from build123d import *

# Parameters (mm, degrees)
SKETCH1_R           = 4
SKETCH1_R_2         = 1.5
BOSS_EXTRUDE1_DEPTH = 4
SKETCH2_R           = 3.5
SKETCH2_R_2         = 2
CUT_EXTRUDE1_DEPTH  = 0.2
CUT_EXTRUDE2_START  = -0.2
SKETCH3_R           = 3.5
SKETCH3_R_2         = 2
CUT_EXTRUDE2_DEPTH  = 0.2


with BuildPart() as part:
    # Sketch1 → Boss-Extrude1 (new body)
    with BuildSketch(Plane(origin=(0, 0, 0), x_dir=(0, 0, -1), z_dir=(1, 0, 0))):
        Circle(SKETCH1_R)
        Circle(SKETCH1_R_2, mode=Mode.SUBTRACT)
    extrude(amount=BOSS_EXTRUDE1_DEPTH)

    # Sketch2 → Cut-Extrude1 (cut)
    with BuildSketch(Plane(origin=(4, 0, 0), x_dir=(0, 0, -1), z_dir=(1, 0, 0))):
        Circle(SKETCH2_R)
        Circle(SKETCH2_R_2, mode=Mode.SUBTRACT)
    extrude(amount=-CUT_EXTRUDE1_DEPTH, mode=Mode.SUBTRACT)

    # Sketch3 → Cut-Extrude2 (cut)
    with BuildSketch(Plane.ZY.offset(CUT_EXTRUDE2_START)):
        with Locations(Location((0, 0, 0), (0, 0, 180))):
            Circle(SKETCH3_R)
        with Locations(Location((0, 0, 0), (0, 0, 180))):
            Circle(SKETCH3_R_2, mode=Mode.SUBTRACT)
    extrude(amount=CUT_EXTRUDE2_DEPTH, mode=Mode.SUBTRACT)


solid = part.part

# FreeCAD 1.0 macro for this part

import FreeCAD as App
import Part
import Sketcher

V = App.Vector

doc = App.newDocument("Part")
body = doc.addObject("PartDesign::Body", "Body")

sketch1 = body.newObject("Sketcher::SketchObject", "Sketch")
sketch1.AttachmentSupport = (doc.getObject("YZ_Plane"), [""])
sketch1.MapMode = "FlatFace"
sketch1.addGeometry([
    Part.Circle(V(0, 0, 0), V(0, 0, 1), 4),
    Part.Circle(V(0, 0, 0), V(0, 0, 1), 1.5),
], False)
sketch1.addConstraint([
    Sketcher.Constraint("Coincident", 0, 3, -1, 1),
    Sketcher.Constraint("Coincident", 1, 3, -1, 1),
    Sketcher.Constraint("Diameter", 0, 8.0),
    Sketcher.Constraint("Diameter", 1, 3.0),
])
pad1 = body.newObject("PartDesign::Pad", "Pad")
pad1.Profile = sketch1
pad1.Length = 4

sketch2 = body.newObject("Sketcher::SketchObject", "Sketch001")
sketch2.AttachmentSupport = (doc.getObject("YZ_Plane"), [""])
sketch2.MapMode = "FlatFace"
sketch2.AttachmentOffset = App.Placement(V(0, 0, 4), App.Rotation())
sketch2.addGeometry([
    Part.Circle(V(0, 0, 0), V(0, 0, 1), 3.5),
    Part.Circle(V(0, 0, 0), V(0, 0, 1), 2),
], False)
sketch2.addConstraint([
    Sketcher.Constraint("Coincident", 0, 3, -1, 1),
    Sketcher.Constraint("Coincident", 1, 3, -1, 1),
    Sketcher.Constraint("Diameter", 0, 7.0),
    Sketcher.Constraint("Diameter", 1, 4.0),
])
pocket1 = body.newObject("PartDesign::Pocket", "Pocket")
pocket1.Profile = sketch2
pocket1.Length = 0.2

sketch3 = body.newObject("Sketcher::SketchObject", "Sketch002")
sketch3.AttachmentSupport = (doc.getObject("YZ_Plane"), [""])
sketch3.MapMode = "FlatFace"
sketch3.AttachmentOffset = App.Placement(V(0, 0, 0.2), App.Rotation())
sketch3.addGeometry([
    Part.Circle(V(0, 0, 0), V(0, 0, 1), 3.5),
    Part.Circle(V(0, 0, 0), V(0, 0, 1), 2),
], False)
sketch3.addConstraint([
    Sketcher.Constraint("Coincident", 0, 3, -1, 1),
    Sketcher.Constraint("Coincident", 1, 3, -1, 1),
    Sketcher.Constraint("Diameter", 0, 7.0),
    Sketcher.Constraint("Diameter", 1, 4.0),
])
pocket2 = body.newObject("PartDesign::Pocket", "Pocket001")
pocket2.Profile = sketch3
pocket2.Length = 0.2

doc.recompute()
